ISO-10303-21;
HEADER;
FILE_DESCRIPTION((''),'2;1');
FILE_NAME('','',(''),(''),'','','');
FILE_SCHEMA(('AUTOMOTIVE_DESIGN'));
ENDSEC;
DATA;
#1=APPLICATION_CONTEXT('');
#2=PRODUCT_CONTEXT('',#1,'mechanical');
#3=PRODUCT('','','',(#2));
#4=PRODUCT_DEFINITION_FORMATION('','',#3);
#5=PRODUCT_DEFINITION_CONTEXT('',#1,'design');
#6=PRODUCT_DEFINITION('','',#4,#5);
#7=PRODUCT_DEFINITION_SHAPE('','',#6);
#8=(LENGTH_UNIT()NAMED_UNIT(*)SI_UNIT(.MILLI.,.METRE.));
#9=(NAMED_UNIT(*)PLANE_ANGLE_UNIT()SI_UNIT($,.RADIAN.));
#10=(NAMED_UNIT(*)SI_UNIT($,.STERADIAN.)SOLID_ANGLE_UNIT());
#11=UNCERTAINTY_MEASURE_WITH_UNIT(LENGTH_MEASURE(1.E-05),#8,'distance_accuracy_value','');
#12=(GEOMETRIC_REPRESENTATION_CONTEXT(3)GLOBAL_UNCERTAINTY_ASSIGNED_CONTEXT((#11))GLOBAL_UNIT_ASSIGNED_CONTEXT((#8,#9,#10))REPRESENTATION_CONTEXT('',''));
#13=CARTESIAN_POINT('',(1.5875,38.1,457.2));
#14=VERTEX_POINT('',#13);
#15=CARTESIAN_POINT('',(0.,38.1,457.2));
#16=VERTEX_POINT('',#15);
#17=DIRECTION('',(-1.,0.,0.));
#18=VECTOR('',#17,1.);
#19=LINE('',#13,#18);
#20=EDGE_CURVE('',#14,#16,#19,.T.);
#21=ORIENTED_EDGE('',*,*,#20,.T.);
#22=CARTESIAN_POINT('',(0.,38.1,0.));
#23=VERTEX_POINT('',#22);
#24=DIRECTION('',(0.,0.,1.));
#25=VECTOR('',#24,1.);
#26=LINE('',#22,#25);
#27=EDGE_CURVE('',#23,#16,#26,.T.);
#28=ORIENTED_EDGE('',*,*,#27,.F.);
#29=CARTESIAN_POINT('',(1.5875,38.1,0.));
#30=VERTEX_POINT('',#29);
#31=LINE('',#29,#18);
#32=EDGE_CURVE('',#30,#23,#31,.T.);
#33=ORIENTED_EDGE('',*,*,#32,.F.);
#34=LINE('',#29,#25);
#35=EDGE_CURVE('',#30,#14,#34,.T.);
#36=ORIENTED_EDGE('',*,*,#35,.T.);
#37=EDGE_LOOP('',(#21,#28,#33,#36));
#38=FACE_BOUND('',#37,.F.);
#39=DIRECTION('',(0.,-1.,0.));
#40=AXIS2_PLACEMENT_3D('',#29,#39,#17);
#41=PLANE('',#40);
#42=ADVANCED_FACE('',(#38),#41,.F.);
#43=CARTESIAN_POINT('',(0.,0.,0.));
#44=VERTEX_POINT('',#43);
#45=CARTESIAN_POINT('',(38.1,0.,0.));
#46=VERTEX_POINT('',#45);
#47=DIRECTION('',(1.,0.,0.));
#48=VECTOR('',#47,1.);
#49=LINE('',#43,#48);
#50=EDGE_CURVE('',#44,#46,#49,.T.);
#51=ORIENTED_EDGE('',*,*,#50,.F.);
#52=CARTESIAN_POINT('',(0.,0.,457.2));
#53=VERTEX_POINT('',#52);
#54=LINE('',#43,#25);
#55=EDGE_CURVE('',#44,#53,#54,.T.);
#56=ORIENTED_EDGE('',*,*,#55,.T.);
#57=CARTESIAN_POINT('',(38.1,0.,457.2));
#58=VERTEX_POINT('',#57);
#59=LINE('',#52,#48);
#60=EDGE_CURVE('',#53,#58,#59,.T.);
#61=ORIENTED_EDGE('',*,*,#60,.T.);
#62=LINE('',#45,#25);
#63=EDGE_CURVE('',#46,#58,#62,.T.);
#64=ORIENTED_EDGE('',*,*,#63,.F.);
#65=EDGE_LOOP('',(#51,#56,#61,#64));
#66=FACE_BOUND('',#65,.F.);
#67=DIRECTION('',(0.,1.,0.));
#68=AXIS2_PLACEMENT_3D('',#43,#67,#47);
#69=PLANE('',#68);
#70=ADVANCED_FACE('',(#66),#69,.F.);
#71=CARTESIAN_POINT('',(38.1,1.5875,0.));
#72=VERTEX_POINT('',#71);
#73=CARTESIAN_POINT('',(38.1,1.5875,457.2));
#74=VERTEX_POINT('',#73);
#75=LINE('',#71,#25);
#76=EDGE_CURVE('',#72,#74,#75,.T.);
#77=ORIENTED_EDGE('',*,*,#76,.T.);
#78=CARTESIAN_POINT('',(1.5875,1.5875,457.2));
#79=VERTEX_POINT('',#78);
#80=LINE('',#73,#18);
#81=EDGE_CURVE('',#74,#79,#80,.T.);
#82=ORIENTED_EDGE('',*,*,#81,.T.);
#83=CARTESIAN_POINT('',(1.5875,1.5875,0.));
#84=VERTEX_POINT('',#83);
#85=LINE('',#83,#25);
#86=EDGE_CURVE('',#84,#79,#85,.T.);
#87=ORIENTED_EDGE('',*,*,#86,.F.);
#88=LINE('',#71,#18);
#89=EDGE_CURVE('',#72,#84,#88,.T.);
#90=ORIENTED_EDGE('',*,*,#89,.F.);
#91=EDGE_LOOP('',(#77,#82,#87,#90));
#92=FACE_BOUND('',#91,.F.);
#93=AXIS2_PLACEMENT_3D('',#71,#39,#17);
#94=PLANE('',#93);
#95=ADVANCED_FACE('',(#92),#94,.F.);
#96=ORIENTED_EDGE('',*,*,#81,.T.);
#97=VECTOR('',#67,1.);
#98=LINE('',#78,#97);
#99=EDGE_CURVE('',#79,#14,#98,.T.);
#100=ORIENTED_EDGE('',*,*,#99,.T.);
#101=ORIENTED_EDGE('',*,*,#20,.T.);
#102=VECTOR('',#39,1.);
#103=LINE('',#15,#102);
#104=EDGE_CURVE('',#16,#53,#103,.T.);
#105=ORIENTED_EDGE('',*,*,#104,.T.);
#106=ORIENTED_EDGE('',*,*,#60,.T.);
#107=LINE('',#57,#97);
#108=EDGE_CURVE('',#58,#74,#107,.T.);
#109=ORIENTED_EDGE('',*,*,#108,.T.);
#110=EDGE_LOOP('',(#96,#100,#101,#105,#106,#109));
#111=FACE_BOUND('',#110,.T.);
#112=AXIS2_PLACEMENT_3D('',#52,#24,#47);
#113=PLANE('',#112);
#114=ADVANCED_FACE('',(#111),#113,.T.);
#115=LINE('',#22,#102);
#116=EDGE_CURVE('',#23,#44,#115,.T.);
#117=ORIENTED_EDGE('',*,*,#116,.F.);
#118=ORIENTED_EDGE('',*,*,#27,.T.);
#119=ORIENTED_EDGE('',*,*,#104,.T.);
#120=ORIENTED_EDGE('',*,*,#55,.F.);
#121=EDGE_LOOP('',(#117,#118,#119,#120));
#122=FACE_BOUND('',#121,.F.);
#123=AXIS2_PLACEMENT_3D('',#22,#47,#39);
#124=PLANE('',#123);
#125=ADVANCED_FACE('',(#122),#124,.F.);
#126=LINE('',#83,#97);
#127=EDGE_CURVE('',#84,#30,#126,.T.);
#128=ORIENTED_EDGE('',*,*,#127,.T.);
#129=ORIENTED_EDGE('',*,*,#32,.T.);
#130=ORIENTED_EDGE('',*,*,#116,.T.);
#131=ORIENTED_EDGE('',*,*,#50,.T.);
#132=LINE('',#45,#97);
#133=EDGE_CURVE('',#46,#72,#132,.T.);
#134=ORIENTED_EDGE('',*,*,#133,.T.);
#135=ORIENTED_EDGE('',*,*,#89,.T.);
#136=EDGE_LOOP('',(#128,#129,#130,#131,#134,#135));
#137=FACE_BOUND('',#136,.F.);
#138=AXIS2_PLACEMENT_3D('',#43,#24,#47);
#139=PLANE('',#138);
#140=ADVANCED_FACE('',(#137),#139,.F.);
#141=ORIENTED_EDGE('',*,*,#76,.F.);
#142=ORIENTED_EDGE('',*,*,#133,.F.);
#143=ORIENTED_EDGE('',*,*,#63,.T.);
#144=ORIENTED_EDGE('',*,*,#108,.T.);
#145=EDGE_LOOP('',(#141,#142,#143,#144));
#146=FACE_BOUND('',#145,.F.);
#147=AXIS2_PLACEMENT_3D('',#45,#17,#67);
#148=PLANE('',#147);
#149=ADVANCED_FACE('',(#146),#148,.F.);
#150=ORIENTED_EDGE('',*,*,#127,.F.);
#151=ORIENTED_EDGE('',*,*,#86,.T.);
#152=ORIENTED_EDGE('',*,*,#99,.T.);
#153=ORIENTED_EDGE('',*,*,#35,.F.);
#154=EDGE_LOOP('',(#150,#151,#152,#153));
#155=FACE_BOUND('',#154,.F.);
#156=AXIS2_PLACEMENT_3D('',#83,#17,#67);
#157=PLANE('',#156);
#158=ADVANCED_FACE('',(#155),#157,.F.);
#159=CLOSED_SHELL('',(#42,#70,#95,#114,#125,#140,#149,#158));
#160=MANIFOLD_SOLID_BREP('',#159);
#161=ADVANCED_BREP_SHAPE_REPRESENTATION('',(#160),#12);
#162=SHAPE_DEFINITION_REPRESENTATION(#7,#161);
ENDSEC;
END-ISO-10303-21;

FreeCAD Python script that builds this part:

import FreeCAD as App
import Part
import Sketcher
Q = App.Units.Quantity

doc = App.newDocument("Part")
params = doc.addObject("Spreadsheet::Sheet", "Params")
for row, (alias, value) in enumerate([
    ("sketch1_width", "1.5 in"),
    ("sketch1_width2", "1.4375 in"),
    ("pad1_length", "18 in"),
], start=1):
    params.set(f"A{row}", alias)
    params.set(f"B{row}", "=" + value)
    params.setAlias(f"B{row}", alias)

body = doc.addObject("PartDesign::Body", "Body")

# Sketch on XY plane
sketch1 = body.newObject("Sketcher::SketchObject", "Sketch")
sketch1.AttachmentSupport = (doc.getObject("XY_Plane"), [""])
sketch1.MapMode = "FlatFace"
sketch1.addGeometry([
    Part.LineSegment(App.Vector(0, 38.1, 0), App.Vector(0, 0, 0)),  # 0
    Part.LineSegment(App.Vector(0, 0, 0), App.Vector(38.1, 0, 0)),  # 1
    Part.LineSegment(App.Vector(38.1, 0, 0), App.Vector(38.1, 1.5875, 0)),  # 2
    Part.LineSegment(App.Vector(38.1, 1.5875, 0), App.Vector(1.5875, 1.5875, 0)),  # 3
    Part.LineSegment(App.Vector(1.5875, 1.5875, 0), App.Vector(1.5875, 38.1, 0)),  # 4
    Part.LineSegment(App.Vector(1.5875, 38.1, 0), App.Vector(0, 38.1, 0)),  # 5
], False)
sketch1.addConstraint([
    Sketcher.Constraint("Coincident", 0, 2, 1, 1),
    Sketcher.Constraint("Coincident", 1, 2, 2, 1),
    Sketcher.Constraint("Coincident", 2, 2, 3, 1),
    Sketcher.Constraint("Coincident", 3, 2, 4, 1),
    Sketcher.Constraint("Coincident", 4, 2, 5, 1),
    Sketcher.Constraint("Coincident", 5, 2, 0, 1),
    Sketcher.Constraint("Vertical", 0),
    Sketcher.Constraint("Horizontal", 1),
    Sketcher.Constraint("Vertical", 2),
    Sketcher.Constraint("Horizontal", 3),
    Sketcher.Constraint("Vertical", 4),
    Sketcher.Constraint("Horizontal", 5),
    Sketcher.Constraint("Coincident", 0, 2, -1, 1),
    Sketcher.Constraint("Equal", 1, 0),
    Sketcher.Constraint("Equal", 5, 2),
    Sketcher.Constraint("DistanceX", 1, 1, 1, 2, Q("1.5 in")),
    Sketcher.Constraint("DistanceX", 3, 2, 3, 1, Q("1.4375 in")),
])
sketch1.setExpression("Constraints[15]", "Params.sketch1_width")
sketch1.setExpression("Constraints[16]", "Params.sketch1_width2")
pad1 = body.newObject("PartDesign::Pad", "Pad")
pad1.Profile = sketch1
pad1.setExpression("Length", "Params.pad1_length")

doc.recompute()
